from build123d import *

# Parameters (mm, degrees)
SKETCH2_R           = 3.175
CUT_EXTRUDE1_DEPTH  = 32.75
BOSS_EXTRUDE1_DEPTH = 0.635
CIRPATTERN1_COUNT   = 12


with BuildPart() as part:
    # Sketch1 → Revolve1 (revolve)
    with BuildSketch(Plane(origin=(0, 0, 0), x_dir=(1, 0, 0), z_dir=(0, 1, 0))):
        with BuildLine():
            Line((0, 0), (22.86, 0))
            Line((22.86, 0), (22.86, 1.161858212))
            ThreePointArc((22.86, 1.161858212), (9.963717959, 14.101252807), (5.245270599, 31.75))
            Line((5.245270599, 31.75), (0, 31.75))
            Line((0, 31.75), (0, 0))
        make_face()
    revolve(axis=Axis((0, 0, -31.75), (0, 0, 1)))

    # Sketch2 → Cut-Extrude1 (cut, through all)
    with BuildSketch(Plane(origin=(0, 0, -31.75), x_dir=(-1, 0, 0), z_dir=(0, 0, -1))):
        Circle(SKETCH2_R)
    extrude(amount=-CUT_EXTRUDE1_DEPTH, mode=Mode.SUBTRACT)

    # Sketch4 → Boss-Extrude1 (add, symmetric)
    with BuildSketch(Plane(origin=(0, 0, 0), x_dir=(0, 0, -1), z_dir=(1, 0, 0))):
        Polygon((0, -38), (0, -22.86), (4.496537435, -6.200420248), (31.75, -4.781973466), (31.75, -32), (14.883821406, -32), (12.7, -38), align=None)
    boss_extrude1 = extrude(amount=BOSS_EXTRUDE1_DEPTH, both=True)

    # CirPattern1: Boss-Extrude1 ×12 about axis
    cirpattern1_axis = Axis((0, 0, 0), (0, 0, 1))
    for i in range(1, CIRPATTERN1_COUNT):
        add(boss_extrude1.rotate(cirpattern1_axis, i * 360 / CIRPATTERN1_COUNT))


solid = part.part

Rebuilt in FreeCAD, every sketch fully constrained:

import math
import FreeCAD as App
import Part
import Sketcher
from FreeCAD import Vector
Q = App.Units.Quantity


def add_polygon(sketch, points):
    """Adds a closed chain of lines whose ends are joined by coincident constraints."""
    first, n = sketch.GeometryCount, len(points)
    for a, b in zip(points, points[1:] + points[:1]):
        sketch.addGeometry(Part.LineSegment(App.Vector(*a, 0), App.Vector(*b, 0)), False)
    for i in range(n):
        sketch.addConstraint(Sketcher.Constraint("Coincident", first + i, 2, first + (i + 1) % n, 1))

doc = App.newDocument("Part")
body = doc.addObject("PartDesign::Body", "Body")

# Sketch on XZ plane
sketch1 = body.newObject("Sketcher::SketchObject", "Sketch")
sketch1.AttachmentSupport = (doc.getObject("XZ_Plane"), [""])
sketch1.MapMode = "FlatFace"
sketch1.addGeometry([
    Part.LineSegment(Vector(0, 0, 0), Vector(22.9, 0, 0)),  # 0
    Part.LineSegment(Vector(22.9, 0, 0), Vector(22.9, -1.2, 0)),  # 1
    Part.ArcOfCircle(Part.Circle(Vector(40.6, -31.8, 0), Vector(0, 0, 1), 35.4), math.radians(120), math.radians(180)),  # 2
    Part.LineSegment(Vector(5.2, -31.8, 0), Vector(0, -31.8, 0)),  # 3
    Part.LineSegment(Vector(0, -31.8, 0), Vector(0, 0, 0)),  # 4
], False)
sketch1.addConstraint([
    Sketcher.Constraint("Coincident", 0, 2, 1, 1),
    Sketcher.Constraint("Coincident", 1, 2, 2, 1),
    Sketcher.Constraint("Coincident", 2, 2, 3, 1),
    Sketcher.Constraint("Coincident", 3, 2, 4, 1),
    Sketcher.Constraint("Coincident", 4, 2, 0, 1),
    Sketcher.Constraint("Horizontal", 0),
    Sketcher.Constraint("Vertical", 1),
    Sketcher.Constraint("Horizontal", 3),
    Sketcher.Constraint("Vertical", 4),
    Sketcher.Constraint("Coincident", 4, 2, -1, 1),
    Sketcher.Constraint("DistanceX", 0, 1, 0, 2, Q("0.9 in")),
    Sketcher.Constraint("DistanceY", 4, 1, 4, 2, Q("1.25 in")),
    Sketcher.Constraint("DistanceY", 2, 3, -1, 1, Q("1.25 in")),
    Sketcher.Constraint("Radius", 2, 35.365661),
    Sketcher.Constraint("DistanceX", 3, 2, 3, 1, 5.245271),
])
revolution = body.newObject("PartDesign::Revolution", "Revolution")
revolution.Profile = sketch1
revolution.ReferenceAxis = (sketch1, ["V_Axis"])
revolution.Angle = 360

# Sketch on XY plane
sketch2 = body.newObject("Sketcher::SketchObject", "Sketch001")
sketch2.AttachmentSupport = (doc.getObject("XY_Plane"), [""])
sketch2.MapMode = "FlatFace"
sketch2.AttachmentOffset = App.Placement(Vector(0, 0, -1.25 * 25.4), App.Rotation())
sketch2.addGeometry(Part.Circle(Vector(0, 0, 0), Vector(0, 0, 1), 3.2), False)
sketch2.addConstraint([
    Sketcher.Constraint("Coincident", 0, 3, -1, 1),
    Sketcher.Constraint("Diameter", 0, Q("0.25 in")),
])
pocket1 = body.newObject("PartDesign::Pocket", "Pocket")
pocket1.Profile = sketch2
pocket1.Type = "ThroughAll"
pocket1.Reversed = True

# Sketch on YZ plane
sketch3 = body.newObject("Sketcher::SketchObject", "Sketch002")
sketch3.AttachmentSupport = (doc.getObject("YZ_Plane"), [""])
sketch3.MapMode = "FlatFace"
add_polygon(sketch3, [(-23, 0), (-38, 0), (-38, -13), (-32, -15), (-32, -32), (-5, -32), (-6, -4)])  # lines 0-6
sketch3.addConstraint([
    Sketcher.Constraint("Horizontal", 0),
    Sketcher.Constraint("Vertical", 1),
    Sketcher.Constraint("Vertical", 3),
    Sketcher.Constraint("Horizontal", 4),
    Sketcher.Constraint("PointOnObject", 0, 2, -1),
    Sketcher.Constraint("DistanceY", 1, 2, 1, 1, Q("0.5 in")),
    Sketcher.Constraint("Angle", 2, Q("-20 deg")),
    Sketcher.Constraint("DistanceX", 6, 2, -1, 1, Q("0.9 in")),
    Sketcher.Constraint("DistanceY", 3, 2, -1, 1, Q("1.25 in")),
    Sketcher.Constraint("DistanceX", 0, 2, 0, 1, 15.14),
    Sketcher.Constraint("DistanceY", 3, 2, 3, 1, 16.866179),
    Sketcher.Constraint("Distance", 5, 27.29035),
    Sketcher.Constraint("DistanceX", 4, 1, 4, 2, 27.218027),
    Sketcher.Constraint("DistanceX", 5, 2, -1, 1, 6.20042),
])
pad1 = body.newObject("PartDesign::Pad", "Pad")
pad1.Profile = sketch3
pad1.Length = Q("0.05 in")
pad1.Midplane = True
doc.recompute()

polarpattern = body.newObject("PartDesign::PolarPattern", "PolarPattern")
polarpattern.Originals = [pad1]
polarpattern.Axis = (doc.getObject("Z_Axis"), [""])
polarpattern.Angle = 360
polarpattern.Occurrences = 12
body.Tip = polarpattern

doc.recompute()
